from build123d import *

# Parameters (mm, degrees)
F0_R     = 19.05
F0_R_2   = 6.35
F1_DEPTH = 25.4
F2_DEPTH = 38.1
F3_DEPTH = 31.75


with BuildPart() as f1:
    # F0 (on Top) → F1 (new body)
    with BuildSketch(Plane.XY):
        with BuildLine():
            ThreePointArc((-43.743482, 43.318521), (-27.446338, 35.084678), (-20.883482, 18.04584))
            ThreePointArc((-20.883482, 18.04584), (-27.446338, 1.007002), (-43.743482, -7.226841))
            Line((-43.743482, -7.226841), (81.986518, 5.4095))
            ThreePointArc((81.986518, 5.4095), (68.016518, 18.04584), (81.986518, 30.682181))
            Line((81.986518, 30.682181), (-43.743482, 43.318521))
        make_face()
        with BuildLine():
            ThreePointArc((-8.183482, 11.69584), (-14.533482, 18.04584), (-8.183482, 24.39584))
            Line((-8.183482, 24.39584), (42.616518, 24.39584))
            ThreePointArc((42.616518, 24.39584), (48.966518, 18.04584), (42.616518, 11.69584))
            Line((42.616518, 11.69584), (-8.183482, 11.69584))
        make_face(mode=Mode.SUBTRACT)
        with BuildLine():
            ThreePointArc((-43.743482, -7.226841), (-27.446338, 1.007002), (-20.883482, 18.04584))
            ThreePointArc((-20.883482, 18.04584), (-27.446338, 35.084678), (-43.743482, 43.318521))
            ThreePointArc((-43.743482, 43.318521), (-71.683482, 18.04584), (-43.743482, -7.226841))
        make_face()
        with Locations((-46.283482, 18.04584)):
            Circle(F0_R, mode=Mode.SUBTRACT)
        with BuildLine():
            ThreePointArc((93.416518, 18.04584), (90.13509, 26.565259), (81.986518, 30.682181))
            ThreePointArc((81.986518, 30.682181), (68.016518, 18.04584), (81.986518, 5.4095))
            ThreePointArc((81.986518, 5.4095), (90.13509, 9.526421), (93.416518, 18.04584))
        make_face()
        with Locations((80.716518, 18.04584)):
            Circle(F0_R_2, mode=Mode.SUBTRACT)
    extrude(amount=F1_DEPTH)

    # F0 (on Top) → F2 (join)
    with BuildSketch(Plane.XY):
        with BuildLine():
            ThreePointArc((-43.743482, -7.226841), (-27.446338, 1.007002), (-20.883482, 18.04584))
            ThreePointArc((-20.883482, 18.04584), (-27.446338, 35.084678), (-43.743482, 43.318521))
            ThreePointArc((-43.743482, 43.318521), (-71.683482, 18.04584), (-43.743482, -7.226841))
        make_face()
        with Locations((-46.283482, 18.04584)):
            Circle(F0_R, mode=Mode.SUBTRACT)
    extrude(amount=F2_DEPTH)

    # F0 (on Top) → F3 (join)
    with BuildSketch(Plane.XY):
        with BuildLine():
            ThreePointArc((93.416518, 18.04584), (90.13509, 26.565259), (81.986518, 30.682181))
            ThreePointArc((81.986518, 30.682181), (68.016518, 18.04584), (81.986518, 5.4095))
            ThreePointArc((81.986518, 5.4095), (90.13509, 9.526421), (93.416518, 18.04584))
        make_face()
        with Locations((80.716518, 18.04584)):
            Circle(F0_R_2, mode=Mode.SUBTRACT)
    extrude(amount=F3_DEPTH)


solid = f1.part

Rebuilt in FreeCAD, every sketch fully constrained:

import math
import FreeCAD as App
import Part
import Sketcher
from FreeCAD import Vector
Q = App.Units.Quantity

doc = App.newDocument("Part")
params = doc.addObject("Spreadsheet::Sheet", "Params")
for row, (alias, value) in enumerate([
    ("sketch1_radius", "1 in"),
    ("sketch1_diameter", "1.5 in"),
    ("sketch1_diameter2", "0.5 in"),
    ("sketch1_radius2", "0.5 in"),
    ("sketch1_width", "2 in"),
    ("pad1_length", "1 in"),
    ("sketch2_radius", "1 in"),
    ("sketch2_diameter", "1.5 in"),
    ("pad2_length", "1.5 in"),
    ("sketch3_diameter", "0.5 in"),
    ("sketch3_radius", "0.5 in"),
    ("pad3_length", "1.25 in"),
], start=1):
    params.set(f"A{row}", alias)
    params.set(f"B{row}", "=" + value)
    params.setAlias(f"B{row}", alias)

body = doc.addObject("PartDesign::Body", "Body")

# Sketch on XY plane
sketch1 = body.newObject("Sketcher::SketchObject", "Sketch")
sketch1.AttachmentSupport = (doc.getObject("XY_Plane"), [""])
sketch1.MapMode = "FlatFace"
sketch1.addGeometry(Part.LineSegment(Vector(82, 31, 0), Vector(-44, 43, 0)), False)
sketch1.addGeometry(Part.ArcOfCircle(Part.Circle(Vector(-46, 18, 0), Vector(0, 0, 1), 25), math.radians(84), math.radians(276)), False)
sketch1.addGeometry(Part.LineSegment(Vector(-44, -7, 0), Vector(82, 5, 0)), False)
sketch1.addGeometry(Part.ArcOfCircle(Part.Circle(Vector(81, 18, 0), Vector(0, 0, 1), 13), math.radians(-84), math.radians(0)), False)
sketch1.addGeometry(Part.ArcOfCircle(Part.Circle(Vector(81, 18, 0), Vector(0, 0, 1), 13), math.radians(0), math.radians(84)), False)
sketch1.addGeometry(Part.Circle(Vector(-46, 18, 0), Vector(0, 0, 1), 19), False)
sketch1.addGeometry(Part.LineSegment(Vector(43, 12, 0), Vector(-8, 12, 0)), False)
sketch1.addGeometry(Part.ArcOfCircle(Part.Circle(Vector(-8, 18, 0), Vector(0, 0, 1), 6), math.radians(90), math.radians(270)), False)
sketch1.addGeometry(Part.LineSegment(Vector(-8, 24, 0), Vector(43, 24, 0)), False)
sketch1.addGeometry(Part.ArcOfCircle(Part.Circle(Vector(43, 18, 0), Vector(0, 0, 1), 6), math.radians(-90), math.radians(90)), False)
sketch1.addGeometry(Part.Circle(Vector(81, 18, 0), Vector(0, 0, 1), 6), False)
sketch1.addConstraint(Sketcher.Constraint("Tangent", 0, 2, 1, 1))
sketch1.addConstraint(Sketcher.Constraint("Tangent", 1, 2, 2, 1))
sketch1.addConstraint(Sketcher.Constraint("Tangent", 2, 2, 3, 1))
sketch1.addConstraint(Sketcher.Constraint("Tangent", 3, 2, 4, 1))
sketch1.addConstraint(Sketcher.Constraint("Tangent", 4, 2, 0, 1))
sketch1.addConstraint(Sketcher.Constraint("Tangent", 6, 2, 7, 2))
sketch1.addConstraint(Sketcher.Constraint("Tangent", 7, 1, 8, 1))
sketch1.addConstraint(Sketcher.Constraint("Tangent", 8, 2, 9, 2))
sketch1.addConstraint(Sketcher.Constraint("Tangent", 9, 1, 6, 1))
sketch1.addConstraint(Sketcher.Constraint("Horizontal", 6))
sketch1.addConstraint(Sketcher.Constraint("Horizontal", 8))
sketch1.addConstraint(Sketcher.Constraint("Coincident", 5, 3, 1, 3))
sketch1.addConstraint(Sketcher.Constraint("Coincident", 10, 3, 3, 3))
sketch1.addConstraint(Sketcher.Constraint("Equal", 3, 4))
sketch1.addConstraint(Sketcher.Constraint("Equal", 9, 10))
sketch1.addConstraint(Sketcher.Constraint("Horizontal", 1, 3, 3, 3))
sketch1.addConstraint(Sketcher.Constraint("Horizontal", 5, 3, 7, 3))
sketch1.addConstraint(Sketcher.Constraint("Horizontal", 10, 3, 3, 2))
sketch1.addConstraint(Sketcher.Constraint("Radius", 1, Q("1 in")))
sketch1.addConstraint(Sketcher.Constraint("Diameter", 5, Q("1.5 in")))
sketch1.addConstraint(Sketcher.Constraint("Diameter", 10, Q("0.5 in")))
sketch1.addConstraint(Sketcher.Constraint("Radius", 3, Q("0.5 in")))
sketch1.addConstraint(Sketcher.Constraint("DistanceX", 6, 2, 6, 1, Q("2 in")))
sketch1.addConstraint(Sketcher.Constraint("DistanceX", 1, 3, 3, 3, Q("5 in")))
sketch1.addConstraint(Sketcher.Constraint("DistanceX", 9, 3, 3, 2, Q("2 in")))
sketch1.addConstraint(Sketcher.Constraint("DistanceY", -1, 1, 2, 2, 5.4095))
sketch1.addConstraint(Sketcher.Constraint("DistanceX", 1, 3, -1, 1, 46.283482))
sketch1.setExpression("Constraints[18]", "Params.sketch1_radius")
sketch1.setExpression("Constraints[19]", "Params.sketch1_diameter")
sketch1.setExpression("Constraints[20]", "Params.sketch1_diameter2")
sketch1.setExpression("Constraints[21]", "Params.sketch1_radius2")
sketch1.setExpression("Constraints[22]", "Params.sketch1_width")
pad1 = body.newObject("PartDesign::Pad", "Pad")
pad1.Profile = sketch1
pad1.setExpression("Length", "Params.pad1_length")

# Sketch on XY plane
sketch2 = body.newObject("Sketcher::SketchObject", "Sketch001")
sketch2.AttachmentSupport = (doc.getObject("XY_Plane"), [""])
sketch2.MapMode = "FlatFace"
sketch2.addGeometry(Part.ArcOfCircle(Part.Circle(Vector(-46, 18, 0), Vector(0, 0, 1), 25), math.radians(-84), math.radians(0)), False)
sketch2.addGeometry(Part.ArcOfCircle(Part.Circle(Vector(-46, 18, 0), Vector(0, 0, 1), 25), math.radians(0), math.radians(84)), False)
sketch2.addGeometry(Part.ArcOfCircle(Part.Circle(Vector(-46, 18, 0), Vector(0, 0, 1), 25), math.radians(84), math.radians(276)), False)
sketch2.addGeometry(Part.Circle(Vector(-46, 18, 0), Vector(0, 0, 1), 19), False)
sketch2.addConstraint(Sketcher.Constraint("Tangent", 0, 2, 1, 1))
sketch2.addConstraint(Sketcher.Constraint("Tangent", 1, 2, 2, 1))
sketch2.addConstraint(Sketcher.Constraint("Tangent", 2, 2, 0, 1))
sketch2.addConstraint(Sketcher.Constraint("Coincident", 3, 3, 0, 3))
sketch2.addConstraint(Sketcher.Constraint("Horizontal", 3, 3, 0, 2))
sketch2.addConstraint(Sketcher.Constraint("Vertical", 1, 2, 2, 2))
sketch2.addConstraint(Sketcher.Constraint("Radius", 0, Q("1 in")))
sketch2.addConstraint(Sketcher.Constraint("Diameter", 3, Q("1.5 in")))
sketch2.addConstraint(Sketcher.Constraint("DistanceX", 0, 3, 1, 2, Q("0.1 in")))
sketch2.addConstraint(Sketcher.Constraint("DistanceY", -1, 1, 0, 3, 18.04584))
sketch2.addConstraint(Sketcher.Constraint("DistanceX", 2, 3, -1, 1, 46.283482))
sketch2.setExpression("Constraints[6]", "Params.sketch2_radius")
sketch2.setExpression("Constraints[7]", "Params.sketch2_diameter")
pad2 = body.newObject("PartDesign::Pad", "Pad001")
pad2.Profile = sketch2
pad2.setExpression("Length", "Params.pad2_length")

# Sketch on XY plane
sketch3 = body.newObject("Sketcher::SketchObject", "Sketch002")
sketch3.AttachmentSupport = (doc.getObject("XY_Plane"), [""])
sketch3.MapMode = "FlatFace"
sketch3.addGeometry(Part.ArcOfCircle(Part.Circle(Vector(81, 18, 0), Vector(0, 0, 1), 13), math.radians(0), math.radians(84)), False)
sketch3.addGeometry(Part.ArcOfCircle(Part.Circle(Vector(81, 18, 0), Vector(0, 0, 1), 13), math.radians(84), math.radians(276)), False)
sketch3.addGeometry(Part.ArcOfCircle(Part.Circle(Vector(81, 18, 0), Vector(0, 0, 1), 13), math.radians(-84), math.radians(0)), False)
sketch3.addGeometry(Part.Circle(Vector(81, 18, 0), Vector(0, 0, 1), 6), False)
sketch3.addConstraint(Sketcher.Constraint("Tangent", 0, 2, 1, 1))
sketch3.addConstraint(Sketcher.Constraint("Tangent", 1, 2, 2, 1))
sketch3.addConstraint(Sketcher.Constraint("Tangent", 2, 2, 0, 1))
sketch3.addConstraint(Sketcher.Constraint("Coincident", 3, 3, 0, 3))
sketch3.addConstraint(Sketcher.Constraint("Horizontal", 3, 3, 2, 2))
sketch3.addConstraint(Sketcher.Constraint("Vertical", 0, 2, 1, 2))
sketch3.addConstraint(Sketcher.Constraint("Diameter", 3, Q("0.5 in")))
sketch3.addConstraint(Sketcher.Constraint("Radius", 0, Q("0.5 in")))
sketch3.addConstraint(Sketcher.Constraint("DistanceX", 1, 3, 0, 2, Q("0.05 in")))
sketch3.addConstraint(Sketcher.Constraint("DistanceY", -1, 1, 1, 2, 5.4095))
sketch3.addConstraint(Sketcher.Constraint("DistanceX", -1, 1, 1, 3, 80.716518))
sketch3.setExpression("Constraints[6]", "Params.sketch3_diameter")
sketch3.setExpression("Constraints[7]", "Params.sketch3_radius")
pad3 = body.newObject("PartDesign::Pad", "Pad002")
pad3.Profile = sketch3
pad3.setExpression("Length", "Params.pad3_length")

doc.recompute()
